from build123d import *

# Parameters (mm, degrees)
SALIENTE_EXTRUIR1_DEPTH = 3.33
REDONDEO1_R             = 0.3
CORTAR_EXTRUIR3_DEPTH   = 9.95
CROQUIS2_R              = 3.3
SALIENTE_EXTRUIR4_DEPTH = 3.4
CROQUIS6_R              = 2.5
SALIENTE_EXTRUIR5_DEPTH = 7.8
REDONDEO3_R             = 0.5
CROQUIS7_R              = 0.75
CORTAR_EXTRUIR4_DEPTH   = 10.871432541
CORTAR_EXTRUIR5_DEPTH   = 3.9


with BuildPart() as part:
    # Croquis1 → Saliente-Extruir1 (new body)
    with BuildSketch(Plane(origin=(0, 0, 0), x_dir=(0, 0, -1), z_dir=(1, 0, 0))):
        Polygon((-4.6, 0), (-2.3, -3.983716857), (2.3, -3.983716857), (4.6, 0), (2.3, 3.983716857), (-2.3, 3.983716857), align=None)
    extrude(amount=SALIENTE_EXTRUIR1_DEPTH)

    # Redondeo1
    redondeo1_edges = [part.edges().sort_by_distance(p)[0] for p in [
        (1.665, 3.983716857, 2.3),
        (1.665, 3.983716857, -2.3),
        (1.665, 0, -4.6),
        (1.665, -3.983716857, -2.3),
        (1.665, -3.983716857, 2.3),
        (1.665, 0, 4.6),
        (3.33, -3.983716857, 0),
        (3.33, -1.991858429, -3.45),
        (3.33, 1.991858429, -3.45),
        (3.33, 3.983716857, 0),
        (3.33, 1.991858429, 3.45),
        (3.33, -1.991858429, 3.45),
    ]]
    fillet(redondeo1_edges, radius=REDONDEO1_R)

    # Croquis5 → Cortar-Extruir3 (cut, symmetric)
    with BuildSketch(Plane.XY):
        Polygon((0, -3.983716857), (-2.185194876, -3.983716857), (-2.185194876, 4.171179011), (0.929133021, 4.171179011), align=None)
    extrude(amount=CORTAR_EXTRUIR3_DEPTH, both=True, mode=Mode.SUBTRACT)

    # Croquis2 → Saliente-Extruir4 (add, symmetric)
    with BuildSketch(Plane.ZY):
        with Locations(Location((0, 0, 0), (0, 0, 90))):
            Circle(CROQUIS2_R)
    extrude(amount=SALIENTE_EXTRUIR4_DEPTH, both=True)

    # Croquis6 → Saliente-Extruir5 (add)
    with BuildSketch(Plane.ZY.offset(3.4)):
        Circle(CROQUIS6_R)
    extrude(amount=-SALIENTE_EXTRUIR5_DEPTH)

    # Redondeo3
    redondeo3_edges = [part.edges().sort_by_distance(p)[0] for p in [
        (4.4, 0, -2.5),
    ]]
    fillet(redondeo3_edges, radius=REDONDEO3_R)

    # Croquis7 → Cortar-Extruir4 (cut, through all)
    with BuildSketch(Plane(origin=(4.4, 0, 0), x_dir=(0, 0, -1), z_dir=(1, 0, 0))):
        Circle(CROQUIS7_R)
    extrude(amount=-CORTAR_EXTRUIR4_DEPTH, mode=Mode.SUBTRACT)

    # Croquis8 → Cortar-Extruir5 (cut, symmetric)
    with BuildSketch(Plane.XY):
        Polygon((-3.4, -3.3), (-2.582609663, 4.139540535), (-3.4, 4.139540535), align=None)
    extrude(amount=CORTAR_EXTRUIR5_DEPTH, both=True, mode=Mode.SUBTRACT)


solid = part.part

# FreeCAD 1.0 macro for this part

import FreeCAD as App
import Part
import Sketcher

V = App.Vector
Q = App.Units.Quantity


def edges_at(feature, points):
    """Names of the edges that pass closest to the given points."""
    edges = feature.Shape.Edges
    near = lambda p: min(range(len(edges)), key=lambda i: edges[i].distToShape(Part.Vertex(*p))[0])
    return sorted({f"Edge{near(p) + 1}" for p in points})

doc = App.newDocument("Part")
body = doc.addObject("PartDesign::Body", "Body")

sketch1 = body.newObject("Sketcher::SketchObject", "Sketch")
sketch1.AttachmentSupport = (doc.getObject("YZ_Plane"), [""])
sketch1.MapMode = "FlatFace"
sketch1.addGeometry([
    Part.LineSegment(V(0, 4.6, 0), V(-4, 2.3, 0)),
    Part.LineSegment(V(-4, 2.3, 0), V(-4, -2.3, 0)),
    Part.LineSegment(V(-4, -2.3, 0), V(0, -4.6, 0)),
    Part.LineSegment(V(0, -4.6, 0), V(4, -2.3, 0)),
    Part.LineSegment(V(4, -2.3, 0), V(4, 2.3, 0)),
    Part.LineSegment(V(4, 2.3, 0), V(0, 4.6, 0)),
], False)
sketch1.addConstraint([
    Sketcher.Constraint("Coincident", 0, 2, 1, 1),
    Sketcher.Constraint("Coincident", 1, 2, 2, 1),
    Sketcher.Constraint("Coincident", 2, 2, 3, 1),
    Sketcher.Constraint("Coincident", 3, 2, 4, 1),
    Sketcher.Constraint("Coincident", 4, 2, 5, 1),
    Sketcher.Constraint("Coincident", 5, 2, 0, 1),
    Sketcher.Constraint("Vertical", 1),
    Sketcher.Constraint("Vertical", 4),
    Sketcher.Constraint("Symmetric", 0, 2, 3, 2, -1, 1),
    Sketcher.Constraint("Symmetric", 2, 2, 5, 2, -1, 1),
    Sketcher.Constraint("PointOnObject", 2, 2, -2),
    Sketcher.Constraint("Parallel", 2, 5),
    Sketcher.Constraint("Horizontal", 1, 2, 3, 2),
    Sketcher.Constraint("Angle", 0, Q("-150 deg")),
    Sketcher.Constraint("DistanceY", 1, 2, 1, 1, Q("4.6 mm")),
    Sketcher.Constraint("Distance", 0, Q("4.6 mm")),
])
pad1 = body.newObject("PartDesign::Pad", "Pad")
pad1.Profile = sketch1
pad1.Length = 3.33
doc.recompute()

fillet = body.newObject("PartDesign::Fillet", "Fillet")
fillet.Base = (pad1, edges_at(pad1, [
    (1.665, 3.984, 2.3),
    (1.665, 3.984, -2.3),
    (1.665, 0, -4.6),
    (1.665, -3.984, -2.3),
    (1.665, -3.984, 2.3),
    (1.665, 0, 4.6),
    (3.33, -3.984, 0),
    (3.33, -1.992, -3.45),
    (3.33, 1.992, -3.45),
    (3.33, 3.984, 0),
    (3.33, 1.992, 3.45),
    (3.33, -1.992, 3.45),
]))
fillet.Radius = 0.3

sketch2 = body.newObject("Sketcher::SketchObject", "Sketch001")
sketch2.AttachmentSupport = (doc.getObject("XY_Plane"), [""])
sketch2.MapMode = "FlatFace"
sketch2.addGeometry([
    Part.LineSegment(V(-2.2, -4, 0), V(0, -4, 0)),
    Part.LineSegment(V(0, -4, 0), V(0.9, 4.2, 0)),
    Part.LineSegment(V(0.9, 4.2, 0), V(-2.2, 4.2, 0)),
    Part.LineSegment(V(-2.2, 4.2, 0), V(-2.2, -4, 0)),
], False)
sketch2.addConstraint([
    Sketcher.Constraint("Coincident", 0, 2, 1, 1),
    Sketcher.Constraint("Coincident", 1, 2, 2, 1),
    Sketcher.Constraint("Coincident", 2, 2, 3, 1),
    Sketcher.Constraint("Coincident", 3, 2, 0, 1),
    Sketcher.Constraint("Horizontal", 0),
    Sketcher.Constraint("Horizontal", 2),
    Sketcher.Constraint("Vertical", 3),
    Sketcher.Constraint("PointOnObject", 0, 2, -2),
    Sketcher.Constraint("Angle", 1, Q("83.5 deg")),
    Sketcher.Constraint("DistanceX", 0, 1, 0, 2, Q("2.185195 mm")),
    Sketcher.Constraint("DistanceX", 2, 2, 2, 1, Q("3.114328 mm")),
    Sketcher.Constraint("DistanceY", -1, 1, 1, 2, Q("4.171179 mm")),
])
pocket1 = body.newObject("PartDesign::Pocket", "Pocket")
pocket1.Profile = sketch2
pocket1.Length = 19.9
pocket1.Midplane = True

sketch3 = body.newObject("Sketcher::SketchObject", "Sketch002")
sketch3.AttachmentSupport = (doc.getObject("YZ_Plane"), [""])
sketch3.MapMode = "FlatFace"
sketch3.addGeometry(Part.Circle(V(0, 0, 0), V(0, 0, 1), 3.3), False)
sketch3.addConstraint([
    Sketcher.Constraint("Coincident", 0, 3, -1, 1),
    Sketcher.Constraint("Diameter", 0, Q("6.6 mm")),
])
pad2 = body.newObject("PartDesign::Pad", "Pad001")
pad2.Profile = sketch3
pad2.Length = 6.8
pad2.Midplane = True

sketch4 = body.newObject("Sketcher::SketchObject", "Sketch003")
sketch4.AttachmentSupport = (doc.getObject("YZ_Plane"), [""])
sketch4.MapMode = "FlatFace"
sketch4.AttachmentOffset = App.Placement(V(0, 0, -3.4), App.Rotation())
sketch4.addGeometry(Part.Circle(V(0, 0, 0), V(0, 0, 1), 2.5), False)
sketch4.addConstraint([
    Sketcher.Constraint("Coincident", 0, 3, -1, 1),
    Sketcher.Constraint("Diameter", 0, Q("5 mm")),
])
pad3 = body.newObject("PartDesign::Pad", "Pad002")
pad3.Profile = sketch4
pad3.Length = 7.8
doc.recompute()

fillet2 = body.newObject("PartDesign::Fillet", "Fillet001")
fillet2.Base = (pad3, edges_at(pad3, [(4.4, 0, -2.5)]))
fillet2.Radius = 0.5

sketch5 = body.newObject("Sketcher::SketchObject", "Sketch004")
sketch5.AttachmentSupport = (doc.getObject("YZ_Plane"), [""])
sketch5.MapMode = "FlatFace"
sketch5.AttachmentOffset = App.Placement(V(0, 0, 4.4), App.Rotation())
sketch5.addGeometry(Part.Circle(V(0, 0, 0), V(0, 0, 1), 0.8), False)
sketch5.addConstraint([
    Sketcher.Constraint("Coincident", 0, 3, -1, 1),
    Sketcher.Constraint("Diameter", 0, Q("1.5 mm")),
])
pocket2 = body.newObject("PartDesign::Pocket", "Pocket001")
pocket2.Profile = sketch5
pocket2.Type = "ThroughAll"

sketch6 = body.newObject("Sketcher::SketchObject", "Sketch005")
sketch6.AttachmentSupport = (doc.getObject("XY_Plane"), [""])
sketch6.MapMode = "FlatFace"
sketch6.addGeometry([
    Part.LineSegment(V(-3.4, -3.3, 0), V(-2.6, 4.1, 0)),
    Part.LineSegment(V(-2.6, 4.1, 0), V(-3.4, 4.1, 0)),
    Part.LineSegment(V(-3.4, 4.1, 0), V(-3.4, -3.3, 0)),
], False)
sketch6.addConstraint([
    Sketcher.Constraint("Coincident", 0, 2, 1, 1),
    Sketcher.Constraint("Coincident", 1, 2, 2, 1),
    Sketcher.Constraint("Coincident", 2, 2, 0, 1),
    Sketcher.Constraint("Horizontal", 1),
    Sketcher.Constraint("Vertical", 2),
    Sketcher.Constraint("DistanceX", 1, 2, -1, 1, Q("3.4 mm")),
    Sketcher.Constraint("DistanceY", 2, 2, -1, 1, Q("3.3 mm")),
    Sketcher.Constraint("Angle", 0, Q("83.73 deg")),
    Sketcher.Constraint("DistanceX", 1, 2, 1, 1, Q("0.81739 mm")),
])
pocket3 = body.newObject("PartDesign::Pocket", "Pocket002")
pocket3.Profile = sketch6
pocket3.Length = 7.8
pocket3.Midplane = True

doc.recompute()
